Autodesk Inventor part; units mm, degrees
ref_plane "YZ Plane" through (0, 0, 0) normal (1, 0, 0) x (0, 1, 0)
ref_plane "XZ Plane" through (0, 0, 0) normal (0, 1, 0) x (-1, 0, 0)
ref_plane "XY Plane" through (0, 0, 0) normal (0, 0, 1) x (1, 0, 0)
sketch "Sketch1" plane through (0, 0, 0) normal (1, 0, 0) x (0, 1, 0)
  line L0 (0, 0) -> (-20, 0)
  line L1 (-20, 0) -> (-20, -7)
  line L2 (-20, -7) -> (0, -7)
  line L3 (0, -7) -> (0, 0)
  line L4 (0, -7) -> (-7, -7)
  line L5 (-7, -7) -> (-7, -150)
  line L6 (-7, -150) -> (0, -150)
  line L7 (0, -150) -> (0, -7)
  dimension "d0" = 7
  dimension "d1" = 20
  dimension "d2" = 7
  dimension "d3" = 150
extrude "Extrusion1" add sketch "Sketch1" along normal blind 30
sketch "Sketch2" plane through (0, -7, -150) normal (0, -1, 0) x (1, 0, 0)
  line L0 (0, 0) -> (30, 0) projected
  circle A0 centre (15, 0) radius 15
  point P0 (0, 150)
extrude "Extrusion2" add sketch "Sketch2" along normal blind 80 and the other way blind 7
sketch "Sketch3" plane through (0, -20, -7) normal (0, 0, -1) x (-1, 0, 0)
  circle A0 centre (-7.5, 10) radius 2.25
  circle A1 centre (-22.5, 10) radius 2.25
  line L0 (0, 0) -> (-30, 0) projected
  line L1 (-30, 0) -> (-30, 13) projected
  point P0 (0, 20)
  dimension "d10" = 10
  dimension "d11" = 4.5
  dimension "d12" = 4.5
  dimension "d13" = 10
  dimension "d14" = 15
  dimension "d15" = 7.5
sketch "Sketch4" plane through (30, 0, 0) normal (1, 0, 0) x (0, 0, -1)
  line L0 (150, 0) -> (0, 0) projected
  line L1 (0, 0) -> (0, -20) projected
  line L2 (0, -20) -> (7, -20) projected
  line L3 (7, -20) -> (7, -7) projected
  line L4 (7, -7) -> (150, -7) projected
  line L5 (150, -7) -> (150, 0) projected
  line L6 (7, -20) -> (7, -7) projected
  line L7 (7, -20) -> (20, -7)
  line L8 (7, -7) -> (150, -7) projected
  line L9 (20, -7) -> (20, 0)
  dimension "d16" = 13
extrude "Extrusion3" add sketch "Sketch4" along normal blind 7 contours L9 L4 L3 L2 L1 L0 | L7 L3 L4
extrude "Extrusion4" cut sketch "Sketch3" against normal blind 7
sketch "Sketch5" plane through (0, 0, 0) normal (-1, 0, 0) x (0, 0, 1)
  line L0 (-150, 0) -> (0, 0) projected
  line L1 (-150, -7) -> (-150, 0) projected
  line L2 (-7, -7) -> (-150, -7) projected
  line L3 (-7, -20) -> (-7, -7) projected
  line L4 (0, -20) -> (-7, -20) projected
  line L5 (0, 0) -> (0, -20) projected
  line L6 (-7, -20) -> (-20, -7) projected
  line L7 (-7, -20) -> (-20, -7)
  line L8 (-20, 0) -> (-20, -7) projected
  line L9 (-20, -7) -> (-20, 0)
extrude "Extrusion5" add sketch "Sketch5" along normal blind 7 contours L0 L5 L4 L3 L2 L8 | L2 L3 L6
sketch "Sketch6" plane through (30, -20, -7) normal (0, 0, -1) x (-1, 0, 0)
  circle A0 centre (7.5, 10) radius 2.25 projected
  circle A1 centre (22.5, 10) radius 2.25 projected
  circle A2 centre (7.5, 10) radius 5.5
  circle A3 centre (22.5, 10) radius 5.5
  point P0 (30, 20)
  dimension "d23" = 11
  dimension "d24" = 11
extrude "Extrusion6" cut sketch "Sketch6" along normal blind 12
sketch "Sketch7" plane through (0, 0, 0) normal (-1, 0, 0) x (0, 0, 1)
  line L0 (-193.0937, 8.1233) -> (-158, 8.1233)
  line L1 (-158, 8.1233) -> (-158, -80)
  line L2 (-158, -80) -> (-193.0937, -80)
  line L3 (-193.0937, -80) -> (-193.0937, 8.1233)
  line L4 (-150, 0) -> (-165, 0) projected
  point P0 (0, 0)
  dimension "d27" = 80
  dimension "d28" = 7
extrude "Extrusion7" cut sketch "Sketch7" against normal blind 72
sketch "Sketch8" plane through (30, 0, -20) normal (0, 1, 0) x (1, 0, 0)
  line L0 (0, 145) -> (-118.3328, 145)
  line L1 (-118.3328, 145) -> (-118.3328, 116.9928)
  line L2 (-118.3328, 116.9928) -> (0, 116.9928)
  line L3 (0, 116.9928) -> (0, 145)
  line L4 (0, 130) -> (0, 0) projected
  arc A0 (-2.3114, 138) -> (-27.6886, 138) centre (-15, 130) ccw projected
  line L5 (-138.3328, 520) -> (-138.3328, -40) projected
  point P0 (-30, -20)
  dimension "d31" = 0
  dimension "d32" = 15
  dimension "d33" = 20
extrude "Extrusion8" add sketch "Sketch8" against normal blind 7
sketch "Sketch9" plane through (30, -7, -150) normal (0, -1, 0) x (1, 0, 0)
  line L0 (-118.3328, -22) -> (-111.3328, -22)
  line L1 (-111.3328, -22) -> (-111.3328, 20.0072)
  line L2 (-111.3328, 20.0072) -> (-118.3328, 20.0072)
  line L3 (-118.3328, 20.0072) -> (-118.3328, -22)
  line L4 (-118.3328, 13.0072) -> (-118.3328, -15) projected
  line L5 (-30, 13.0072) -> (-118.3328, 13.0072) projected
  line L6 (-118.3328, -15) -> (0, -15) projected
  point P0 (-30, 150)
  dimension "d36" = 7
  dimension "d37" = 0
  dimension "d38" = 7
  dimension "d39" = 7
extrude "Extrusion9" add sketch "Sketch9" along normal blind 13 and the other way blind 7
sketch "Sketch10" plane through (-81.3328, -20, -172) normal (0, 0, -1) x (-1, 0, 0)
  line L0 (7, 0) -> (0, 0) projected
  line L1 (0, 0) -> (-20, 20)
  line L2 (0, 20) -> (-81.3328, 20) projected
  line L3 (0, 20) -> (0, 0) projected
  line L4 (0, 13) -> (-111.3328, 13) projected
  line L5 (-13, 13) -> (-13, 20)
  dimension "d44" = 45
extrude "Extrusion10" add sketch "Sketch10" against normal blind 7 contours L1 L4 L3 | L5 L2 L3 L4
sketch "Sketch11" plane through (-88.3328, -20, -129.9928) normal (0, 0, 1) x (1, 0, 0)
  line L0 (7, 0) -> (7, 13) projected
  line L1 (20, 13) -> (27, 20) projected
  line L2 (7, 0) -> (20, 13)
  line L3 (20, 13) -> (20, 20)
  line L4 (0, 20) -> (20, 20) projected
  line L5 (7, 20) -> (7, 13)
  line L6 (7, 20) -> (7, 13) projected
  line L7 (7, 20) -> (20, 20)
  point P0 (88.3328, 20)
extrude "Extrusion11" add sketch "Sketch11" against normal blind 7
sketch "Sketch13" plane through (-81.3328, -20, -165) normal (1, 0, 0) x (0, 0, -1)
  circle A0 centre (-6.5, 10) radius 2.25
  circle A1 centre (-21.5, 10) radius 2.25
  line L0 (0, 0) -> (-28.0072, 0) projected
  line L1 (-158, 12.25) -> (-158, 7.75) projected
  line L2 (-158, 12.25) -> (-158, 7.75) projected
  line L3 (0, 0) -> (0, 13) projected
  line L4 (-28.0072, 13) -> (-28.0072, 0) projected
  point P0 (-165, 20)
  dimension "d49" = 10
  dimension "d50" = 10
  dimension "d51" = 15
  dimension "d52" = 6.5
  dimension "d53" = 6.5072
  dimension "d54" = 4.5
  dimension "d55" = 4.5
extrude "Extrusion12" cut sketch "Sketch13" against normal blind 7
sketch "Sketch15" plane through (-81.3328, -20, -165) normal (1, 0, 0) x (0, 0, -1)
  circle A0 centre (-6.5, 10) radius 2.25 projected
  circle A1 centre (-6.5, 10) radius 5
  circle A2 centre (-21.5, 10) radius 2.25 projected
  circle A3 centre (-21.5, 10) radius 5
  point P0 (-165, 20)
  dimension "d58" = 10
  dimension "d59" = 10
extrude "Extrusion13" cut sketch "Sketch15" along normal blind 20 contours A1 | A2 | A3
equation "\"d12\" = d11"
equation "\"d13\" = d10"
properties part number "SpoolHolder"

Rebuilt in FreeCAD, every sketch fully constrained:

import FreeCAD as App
import Part
import Sketcher


def add_polygon(sketch, points):
    """Adds a closed chain of lines whose ends are joined by coincident constraints."""
    first, n = sketch.GeometryCount, len(points)
    for a, b in zip(points, points[1:] + points[:1]):
        sketch.addGeometry(Part.LineSegment(App.Vector(*a, 0), App.Vector(*b, 0)), False)
    for i in range(n):
        sketch.addConstraint(Sketcher.Constraint("Coincident", first + i, 2, first + (i + 1) % n, 1))

doc = App.newDocument("Part")
params = doc.addObject("Spreadsheet::Sheet", "Params")
for row, (alias, value) in enumerate([
    ("sketch1_width", "20 mm"),
    ("sketch1_width2", "7 mm"),
    ("sketch1_height", "150 mm"),
    ("pad1_length", "30 mm"),
    ("sketch2_diameter", "30 mm"),
    ("pad2_length", "80 mm"),
    ("pad2_length2", "7 mm"),
    ("sketch3_width", "7 mm"),
    ("pad3_length", "7 mm"),
    ("sketch4_diameter", "4.5 mm"),
    ("pocket1_length", "7 mm"),
    ("sketch5_width", "7 mm"),
    ("sketch5_width2", "20 mm"),
    ("pad4_length", "7 mm"),
    ("sketch6_diameter", "11 mm"),
    ("sketch6_diameter2", "4.5 mm"),
    ("pocket2_length", "12 mm"),
    ("pocket3_length", "72 mm"),
    ("pad5_length", "7 mm"),
    ("sketch9_width", "7 mm"),
    ("pad6_length", "13 mm"),
    ("pad6_length2", "7 mm"),
    ("sketch10_width", "13 mm"),
    ("sketch10_height", "20 mm"),
    ("sketch10_height2", "7 mm"),
    ("pad7_length", "7 mm"),
    ("sketch11_width", "13 mm"),
    ("sketch11_height", "20 mm"),
    ("sketch11_height2", "7 mm"),
    ("pad8_length", "7 mm"),
    ("sketch12_diameter", "4.5 mm"),
    ("pocket4_length", "7 mm"),
    ("sketch13_diameter", "10 mm"),
    ("sketch13_diameter2", "4.5 mm"),
    ("pocket5_length", "20 mm"),
], start=1):
    params.set(f"A{row}", alias)
    params.set(f"B{row}", "=" + value)
    params.setAlias(f"B{row}", alias)

body = doc.addObject("PartDesign::Body", "Body")

# Sketch on YZ plane
sketch1 = body.newObject("Sketcher::SketchObject", "Sketch")
sketch1.AttachmentSupport = (doc.getObject("YZ_Plane"), [""])
sketch1.MapMode = "FlatFace"
add_polygon(sketch1, [(0, 0), (-20, 0), (-20, -7), (-7, -7), (-7, -150), (0, -150)])  # lines 0-5
sketch1.addConstraint([
    Sketcher.Constraint("Horizontal", 0),
    Sketcher.Constraint("Vertical", 1),
    Sketcher.Constraint("Horizontal", 2),
    Sketcher.Constraint("Vertical", 3),
    Sketcher.Constraint("Horizontal", 4),
    Sketcher.Constraint("Vertical", 5),
    Sketcher.Constraint("Coincident", 5, 2, -1, 1),
    Sketcher.Constraint("Equal", 4, 1),
    Sketcher.Constraint("DistanceX", 0, 2, 0, 1, 20.0),
    Sketcher.Constraint("DistanceX", 4, 1, 4, 2, 7.0),
    Sketcher.Constraint("DistanceY", 5, 1, 5, 2, 150.0),
])
sketch1.setExpression("Constraints[14]", "Params.sketch1_width")
sketch1.setExpression("Constraints[15]", "Params.sketch1_width2")
sketch1.setExpression("Constraints[16]", "Params.sketch1_height")
pad1 = body.newObject("PartDesign::Pad", "Pad")
pad1.Profile = sketch1
pad1.setExpression("Length", "Params.pad1_length")

# Sketch on XZ plane
sketch2 = body.newObject("Sketcher::SketchObject", "Sketch001")
sketch2.AttachmentSupport = (doc.getObject("XZ_Plane"), [""])
sketch2.MapMode = "FlatFace"
sketch2.AttachmentOffset = App.Placement(App.Vector(0, 0, 7), App.Rotation())
sketch2.addGeometry(Part.Circle(App.Vector(15, -150, 0), App.Vector(0, 0, 1), 15), False)
sketch2.addConstraint([
    Sketcher.Constraint("Diameter", 0, 30.0),
    Sketcher.Constraint("DistanceX", -1, 1, 0, 3, 15.0),
    Sketcher.Constraint("DistanceY", 0, 3, -1, 1, 150.0),
])
sketch2.setExpression("Constraints[0]", "Params.sketch2_diameter")
pad2 = body.newObject("PartDesign::Pad", "Pad001")
pad2.Profile = sketch2
pad2.Type = "TwoLengths"
pad2.setExpression("Length", "Params.pad2_length")
pad2.setExpression("Length2", "Params.pad2_length2")

# Sketch on YZ plane
sketch3 = body.newObject("Sketcher::SketchObject", "Sketch002")
sketch3.AttachmentSupport = (doc.getObject("YZ_Plane"), [""])
sketch3.MapMode = "FlatFace"
sketch3.AttachmentOffset = App.Placement(App.Vector(0, 0, 30), App.Rotation())
add_polygon(sketch3, [(-7, -20), (0, -20), (0, 0), (-20, 0), (-20, -7)])  # lines 0-4
sketch3.addConstraint([
    Sketcher.Constraint("Horizontal", 0),
    Sketcher.Constraint("Vertical", 1),
    Sketcher.Constraint("Horizontal", 2),
    Sketcher.Constraint("Vertical", 3),
    Sketcher.Constraint("Coincident", 1, 2, -1, 1),
    Sketcher.Constraint("Equal", 2, 1),
    Sketcher.Constraint("Equal", 0, 3),
    Sketcher.Constraint("DistanceY", 0, 2, 3, 2, 13.0),
    Sketcher.Constraint("DistanceX", 0, 1, 0, 2, 7.0),
])
sketch3.setExpression("Constraints[13]", "Params.sketch3_width")
pad3 = body.newObject("PartDesign::Pad", "Pad002")
pad3.Profile = sketch3
pad3.setExpression("Length", "Params.pad3_length")

# Sketch on XY plane
sketch4 = body.newObject("Sketcher::SketchObject", "Sketch003")
sketch4.AttachmentSupport = (doc.getObject("XY_Plane"), [""])
sketch4.MapMode = "FlatFace"
sketch4.AttachmentOffset = App.Placement(App.Vector(0, 0, -7), App.Rotation())
sketch4.addGeometry([
    Part.Circle(App.Vector(7.5, -10, 0), App.Vector(0, 0, 1), 2.2),
    Part.Circle(App.Vector(22.5, -10, 0), App.Vector(0, 0, 1), 2.2),
], False)
sketch4.addConstraint([
    Sketcher.Constraint("Equal", 0, 1),
    Sketcher.Constraint("Horizontal", 0, 3, 1, 3),
    Sketcher.Constraint("Diameter", 0, 4.5),
    Sketcher.Constraint("DistanceY", 0, 3, -1, 1, 10.0),
    Sketcher.Constraint("DistanceX", 0, 3, 1, 3, 15.0),
    Sketcher.Constraint("DistanceX", -1, 1, 0, 3, 7.5),
])
sketch4.setExpression("Constraints[2]", "Params.sketch4_diameter")
pocket1 = body.newObject("PartDesign::Pocket", "Pocket")
pocket1.Profile = sketch4
pocket1.setExpression("Length", "Params.pocket1_length")
pocket1.Reversed = True

# Sketch on YZ plane
sketch5 = body.newObject("Sketcher::SketchObject", "Sketch004")
sketch5.AttachmentSupport = (doc.getObject("YZ_Plane"), [""])
sketch5.MapMode = "FlatFace"
add_polygon(sketch5, [(0, 0), (0, -20), (-7, -20), (-20, -7), (-20, 0)])  # lines 0-4
sketch5.addConstraint([
    Sketcher.Constraint("Vertical", 0),
    Sketcher.Constraint("Horizontal", 1),
    Sketcher.Constraint("Vertical", 3),
    Sketcher.Constraint("Horizontal", 4),
    Sketcher.Constraint("Coincident", 4, 2, -1, 1),
    Sketcher.Constraint("Equal", 4, 0),
    Sketcher.Constraint("Equal", 1, 3),
    Sketcher.Constraint("DistanceX", 1, 2, 1, 1, 7.0),
    Sketcher.Constraint("DistanceX", 4, 1, 4, 2, 20.0),
])
sketch5.setExpression("Constraints[12]", "Params.sketch5_width")
sketch5.setExpression("Constraints[13]", "Params.sketch5_width2")
pad4 = body.newObject("PartDesign::Pad", "Pad003")
pad4.Profile = sketch5
pad4.setExpression("Length", "Params.pad4_length")
pad4.Reversed = True

# Sketch on XY plane
sketch6 = body.newObject("Sketcher::SketchObject", "Sketch005")
sketch6.AttachmentSupport = (doc.getObject("XY_Plane"), [""])
sketch6.MapMode = "FlatFace"
sketch6.AttachmentOffset = App.Placement(App.Vector(0, 0, -7), App.Rotation())
sketch6.addGeometry([
    Part.Circle(App.Vector(22.5, -10, 0), App.Vector(0, 0, 1), 5.5),
    Part.Circle(App.Vector(22.5, -10, 0), App.Vector(0, 0, 1), 2.2),
    Part.Circle(App.Vector(7.5, -10, 0), App.Vector(0, 0, 1), 5.5),
    Part.Circle(App.Vector(7.5, -10, 0), App.Vector(0, 0, 1), 2.2),
], False)
sketch6.addConstraint([
    Sketcher.Constraint("Coincident", 1, 3, 0, 3),
    Sketcher.Constraint("Coincident", 3, 3, 2, 3),
    Sketcher.Constraint("Equal", 0, 2),
    Sketcher.Constraint("Equal", 1, 3),
    Sketcher.Constraint("Horizontal", 1, 3, 2, 3),
    Sketcher.Constraint("Diameter", 0, 11.0),
    Sketcher.Constraint("Diameter", 1, 4.5),
    Sketcher.Constraint("DistanceY", 0, 3, -1, 1, 10.0),
    Sketcher.Constraint("DistanceX", 2, 3, 0, 3, 15.0),
    Sketcher.Constraint("DistanceX", -1, 1, 0, 3, 22.5),
])
sketch6.setExpression("Constraints[5]", "Params.sketch6_diameter")
sketch6.setExpression("Constraints[6]", "Params.sketch6_diameter2")
pocket2 = body.newObject("PartDesign::Pocket", "Pocket001")
pocket2.Profile = sketch6
pocket2.setExpression("Length", "Params.pocket2_length")

# Sketch on YZ plane
sketch7 = body.newObject("Sketcher::SketchObject", "Sketch006")
sketch7.AttachmentSupport = (doc.getObject("YZ_Plane"), [""])
sketch7.MapMode = "FlatFace"
add_polygon(sketch7, [(8, -158), (8, -193), (-80, -193), (-80, -158)])  # lines 0-3
sketch7.addConstraint([
    Sketcher.Constraint("Vertical", 0),
    Sketcher.Constraint("Horizontal", 1),
    Sketcher.Constraint("Vertical", 2),
    Sketcher.Constraint("Horizontal", 3),
    Sketcher.Constraint("DistanceX", 1, 2, -1, 1, 80.0),
    Sketcher.Constraint("DistanceY", 2, 2, -1, 1, 158.0),
    Sketcher.Constraint("DistanceX", 1, 2, 1, 1, 88.1233),
    Sketcher.Constraint("DistanceY", 0, 2, 0, 1, 35.0937),
])
pocket3 = body.newObject("PartDesign::Pocket", "Pocket002")
pocket3.Profile = sketch7
pocket3.setExpression("Length", "Params.pocket3_length")
pocket3.Reversed = True

# Sketch on XZ plane
sketch8 = body.newObject("Sketcher::SketchObject", "Sketch007")
sketch8.AttachmentSupport = (doc.getObject("XZ_Plane"), [""])
sketch8.MapMode = "FlatFace"
add_polygon(sketch8, [(30, -137), (30, -165), (-88, -165), (-88, -137)])  # lines 0-3
sketch8.addConstraint([
    Sketcher.Constraint("Vertical", 0),
    Sketcher.Constraint("Horizontal", 1),
    Sketcher.Constraint("Vertical", 2),
    Sketcher.Constraint("Horizontal", 3),
    Sketcher.Constraint("DistanceX", -1, 1, 0, 2, 30.0),
    Sketcher.Constraint("DistanceY", 0, 2, -1, 1, 165.0),
    Sketcher.Constraint("DistanceX", 1, 2, 1, 1, 118.3328),
    Sketcher.Constraint("DistanceY", 0, 2, 0, 1, 28.0072),
])
pad5 = body.newObject("PartDesign::Pad", "Pad004")
pad5.Profile = sketch8
pad5.setExpression("Length", "Params.pad5_length")

# Sketch on XZ plane
sketch9 = body.newObject("Sketcher::SketchObject", "Sketch008")
sketch9.AttachmentSupport = (doc.getObject("XZ_Plane"), [""])
sketch9.MapMode = "FlatFace"
sketch9.AttachmentOffset = App.Placement(App.Vector(0, 0, 7), App.Rotation())
add_polygon(sketch9, [(-88, -172), (-81, -172), (-81, -130), (-88, -130)])  # lines 0-3
sketch9.addConstraint([
    Sketcher.Constraint("Horizontal", 0),
    Sketcher.Constraint("Vertical", 1),
    Sketcher.Constraint("Horizontal", 2),
    Sketcher.Constraint("Vertical", 3),
    Sketcher.Constraint("DistanceX", 0, 1, 0, 2, 7.0),
    Sketcher.Constraint("DistanceY", 0, 2, -1, 1, 172.0),
    Sketcher.Constraint("DistanceY", 1, 1, 1, 2, 42.0072),
    Sketcher.Constraint("DistanceX", 0, 2, -1, 1, 81.3328),
])
sketch9.setExpression("Constraints[8]", "Params.sketch9_width")
pad6 = body.newObject("PartDesign::Pad", "Pad005")
pad6.Profile = sketch9
pad6.Type = "TwoLengths"
pad6.setExpression("Length", "Params.pad6_length")
pad6.setExpression("Length2", "Params.pad6_length2")

# Sketch on XY plane
sketch10 = body.newObject("Sketcher::SketchObject", "Sketch009")
sketch10.AttachmentSupport = (doc.getObject("XY_Plane"), [""])
sketch10.MapMode = "FlatFace"
sketch10.AttachmentOffset = App.Placement(App.Vector(0, 0, -172), App.Rotation())
add_polygon(sketch10, [(-68, -7), (-81, -20), (-81, 0), (-68, 0)])  # lines 0-3
sketch10.addConstraint([
    Sketcher.Constraint("Vertical", 1),
    Sketcher.Constraint("Horizontal", 2),
    Sketcher.Constraint("Vertical", 3),
    Sketcher.Constraint("PointOnObject", 1, 2, -1),
    Sketcher.Constraint("DistanceX", 2, 1, 2, 2, 13.0),
    Sketcher.Constraint("DistanceY", 1, 1, 1, 2, 20.0),
    Sketcher.Constraint("DistanceY", 3, 2, 3, 1, 7.0),
    Sketcher.Constraint("DistanceX", 0, 2, -1, 1, 81.3328),
])
sketch10.setExpression("Constraints[8]", "Params.sketch10_width")
sketch10.setExpression("Constraints[9]", "Params.sketch10_height")
sketch10.setExpression("Constraints[10]", "Params.sketch10_height2")
pad7 = body.newObject("PartDesign::Pad", "Pad006")
pad7.Profile = sketch10
pad7.setExpression("Length", "Params.pad7_length")

# Sketch on XY plane
sketch11 = body.newObject("Sketcher::SketchObject", "Sketch010")
sketch11.AttachmentSupport = (doc.getObject("XY_Plane"), [""])
sketch11.MapMode = "FlatFace"
sketch11.AttachmentOffset = App.Placement(App.Vector(0, 0, -129.9928), App.Rotation())
add_polygon(sketch11, [(-81, 0), (-81, -20), (-68, -7), (-68, 0)])  # lines 0-3
sketch11.addConstraint([
    Sketcher.Constraint("Vertical", 0),
    Sketcher.Constraint("Vertical", 2),
    Sketcher.Constraint("Horizontal", 3),
    Sketcher.Constraint("PointOnObject", 2, 2, -1),
    Sketcher.Constraint("DistanceX", 3, 2, 3, 1, 13.0),
    Sketcher.Constraint("DistanceY", 0, 2, 0, 1, 20.0),
    Sketcher.Constraint("DistanceY", 2, 1, 2, 2, 7.0),
    Sketcher.Constraint("DistanceX", 0, 2, -1, 1, 81.3328),
])
sketch11.setExpression("Constraints[8]", "Params.sketch11_width")
sketch11.setExpression("Constraints[9]", "Params.sketch11_height")
sketch11.setExpression("Constraints[10]", "Params.sketch11_height2")
pad8 = body.newObject("PartDesign::Pad", "Pad007")
pad8.Profile = sketch11
pad8.setExpression("Length", "Params.pad8_length")
pad8.Reversed = True

# Sketch on YZ plane
sketch12 = body.newObject("Sketcher::SketchObject", "Sketch011")
sketch12.AttachmentSupport = (doc.getObject("YZ_Plane"), [""])
sketch12.MapMode = "FlatFace"
sketch12.AttachmentOffset = App.Placement(App.Vector(0, 0, -81.3328), App.Rotation())
sketch12.addGeometry([
    Part.Circle(App.Vector(-10, -158.5, 0), App.Vector(0, 0, 1), 2.2),
    Part.Circle(App.Vector(-10, -143.5, 0), App.Vector(0, 0, 1), 2.2),
], False)
sketch12.addConstraint([
    Sketcher.Constraint("Equal", 0, 1),
    Sketcher.Constraint("Vertical", 0, 3, 1, 3),
    Sketcher.Constraint("Diameter", 0, 4.5),
    Sketcher.Constraint("DistanceX", 0, 3, -1, 1, 10.0),
    Sketcher.Constraint("DistanceY", 0, 3, 1, 3, 15.0),
    Sketcher.Constraint("DistanceY", 0, 3, -1, 1, 158.5),
])
sketch12.setExpression("Constraints[2]", "Params.sketch12_diameter")
pocket4 = body.newObject("PartDesign::Pocket", "Pocket003")
pocket4.Profile = sketch12
pocket4.setExpression("Length", "Params.pocket4_length")

# Sketch on YZ plane
sketch13 = body.newObject("Sketcher::SketchObject", "Sketch012")
sketch13.AttachmentSupport = (doc.getObject("YZ_Plane"), [""])
sketch13.MapMode = "FlatFace"
sketch13.AttachmentOffset = App.Placement(App.Vector(0, 0, -81.3328), App.Rotation())
sketch13.addGeometry([
    Part.Circle(App.Vector(-10, -158.5, 0), App.Vector(0, 0, 1), 5),
    Part.Circle(App.Vector(-10, -158.5, 0), App.Vector(0, 0, 1), 2.2),
    Part.Circle(App.Vector(-10, -143.5, 0), App.Vector(0, 0, 1), 5),
], False)
sketch13.addConstraint([
    Sketcher.Constraint("Coincident", 1, 3, 0, 3),
    Sketcher.Constraint("Equal", 0, 2),
    Sketcher.Constraint("Vertical", 1, 3, 2, 3),
    Sketcher.Constraint("Diameter", 0, 10.0),
    Sketcher.Constraint("DistanceX", 0, 3, -1, 1, 10.0),
    Sketcher.Constraint("Diameter", 1, 4.5),
    Sketcher.Constraint("DistanceY", 0, 3, 2, 3, 15.0),
    Sketcher.Constraint("DistanceY", 0, 3, -1, 1, 158.5),
])
sketch13.setExpression("Constraints[3]", "Params.sketch13_diameter")
sketch13.setExpression("Constraints[5]", "Params.sketch13_diameter2")
pocket5 = body.newObject("PartDesign::Pocket", "Pocket004")
pocket5.Profile = sketch13
pocket5.setExpression("Length", "Params.pocket5_length")
pocket5.Reversed = True

doc.recompute()
